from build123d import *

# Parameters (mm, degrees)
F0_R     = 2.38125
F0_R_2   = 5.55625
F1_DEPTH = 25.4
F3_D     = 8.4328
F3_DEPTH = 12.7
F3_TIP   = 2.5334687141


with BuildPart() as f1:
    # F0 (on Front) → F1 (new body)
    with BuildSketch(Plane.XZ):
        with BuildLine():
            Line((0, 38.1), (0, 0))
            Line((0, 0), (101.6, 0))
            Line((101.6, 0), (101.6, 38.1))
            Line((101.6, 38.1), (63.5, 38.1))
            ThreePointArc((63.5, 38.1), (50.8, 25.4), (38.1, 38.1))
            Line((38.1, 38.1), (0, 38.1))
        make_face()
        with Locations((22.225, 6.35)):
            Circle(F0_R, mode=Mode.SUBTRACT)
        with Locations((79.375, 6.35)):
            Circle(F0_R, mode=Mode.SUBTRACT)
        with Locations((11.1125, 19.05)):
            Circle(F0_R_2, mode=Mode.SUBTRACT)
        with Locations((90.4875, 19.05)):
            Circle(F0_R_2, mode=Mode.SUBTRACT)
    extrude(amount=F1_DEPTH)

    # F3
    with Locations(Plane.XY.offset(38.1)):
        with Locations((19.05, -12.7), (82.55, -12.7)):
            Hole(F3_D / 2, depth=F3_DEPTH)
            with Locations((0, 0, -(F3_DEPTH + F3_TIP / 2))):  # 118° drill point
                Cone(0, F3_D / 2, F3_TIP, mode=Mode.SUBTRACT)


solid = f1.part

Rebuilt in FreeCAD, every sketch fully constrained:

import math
import FreeCAD as App
import Part
import Sketcher

V = App.Vector
Q = App.Units.Quantity

doc = App.newDocument("Part")
body = doc.addObject("PartDesign::Body", "Body")

# Sketch on XZ plane
sketch1 = body.newObject("Sketcher::SketchObject", "Sketch")
sketch1.AttachmentSupport = (doc.getObject("XZ_Plane"), [""])
sketch1.MapMode = "FlatFace"
sketch1.addGeometry([
    Part.LineSegment(V(0, 38.1, 0), V(0, 0, 0)),  # 0
    Part.LineSegment(V(0, 0, 0), V(101.6, 0, 0)),  # 1
    Part.LineSegment(V(101.6, 0, 0), V(101.6, 38.1, 0)),  # 2
    Part.LineSegment(V(101.6, 38.1, 0), V(63.5, 38.1, 0)),  # 3
    Part.ArcOfCircle(Part.Circle(V(50.8, 38.1, 0), V(0, 0, 1), 12.7), math.radians(180), math.radians(360)),  # 4
    Part.LineSegment(V(38.1, 38.1, 0), V(0, 38.1, 0)),  # 5
    Part.Circle(V(22.2, 6.3, 0), V(0, 0, 1), 2.4),  # 6
    Part.Circle(V(79.4, 6.3, 0), V(0, 0, 1), 2.4),  # 7
    Part.Circle(V(11.1, 19.1, 0), V(0, 0, 1), 5.6),  # 8
    Part.Circle(V(90.5, 19.1, 0), V(0, 0, 1), 5.6),  # 9
], False)
sketch1.addConstraint([
    Sketcher.Constraint("Coincident", 0, 2, 1, 1),
    Sketcher.Constraint("Coincident", 1, 2, 2, 1),
    Sketcher.Constraint("Coincident", 2, 2, 3, 1),
    Sketcher.Constraint("Coincident", 3, 2, 4, 2),
    Sketcher.Constraint("Coincident", 4, 1, 5, 1),
    Sketcher.Constraint("Coincident", 5, 2, 0, 1),
    Sketcher.Constraint("Vertical", 0),
    Sketcher.Constraint("Horizontal", 1),
    Sketcher.Constraint("Vertical", 2),
    Sketcher.Constraint("Horizontal", 3),
    Sketcher.Constraint("Horizontal", 5),
    Sketcher.Constraint("Coincident", 0, 2, -1, 1),
    Sketcher.Constraint("Equal", 6, 7),
    Sketcher.Constraint("Equal", 8, 9),
    Sketcher.Constraint("Horizontal", 6, 3, 7, 3),
    Sketcher.Constraint("Horizontal", 8, 3, 9, 3),
    Sketcher.Constraint("Horizontal", 4, 3, 2, 2),
    Sketcher.Constraint("Horizontal", 3, 2, 4, 1),
    Sketcher.Constraint("Equal", 3, 5),
    Sketcher.Constraint("Equal", 5, 0),
    Sketcher.Constraint("Radius", 4, Q("0.5 in")),
    Sketcher.Constraint("DistanceX", 1, 1, 1, 2, Q("4 in")),
    Sketcher.Constraint("Diameter", 6, Q("0.1875 in")),
    Sketcher.Constraint("Diameter", 8, Q("0.4375 in")),
    Sketcher.Constraint("DistanceY", 6, 3, 8, 3, Q("0.5 in")),
    Sketcher.Constraint("DistanceY", -1, 1, 6, 3, Q("0.25 in")),
    Sketcher.Constraint("DistanceX", 6, 3, 7, 3, Q("2.25 in")),
    Sketcher.Constraint("DistanceX", -1, 1, 6, 3, Q("0.875 in")),
    Sketcher.Constraint("DistanceX", -1, 1, 8, 3, Q("0.4375 in")),
    Sketcher.Constraint("DistanceX", -1, 1, 9, 3, Q("3.5625 in")),
])
pad1 = body.newObject("PartDesign::Pad", "Pad")
pad1.Profile = sketch1
pad1.Length = Q("1 in")

# Sketch on XY plane
sketch2 = body.newObject("Sketcher::SketchObject", "Sketch001")
sketch2.AttachmentSupport = (doc.getObject("XY_Plane"), [""])
sketch2.MapMode = "FlatFace"
sketch2.AttachmentOffset = App.Placement(V(0, 0, 1.5 * 25.4), App.Rotation())
sketch2.addGeometry([
    Part.Circle(V(19.1, -12.7, 0), V(0, 0, 1), 4.2),
    Part.Circle(V(82.5, -12.7, 0), V(0, 0, 1), 4.2),
], False)
sketch2.addConstraint([
    Sketcher.Constraint("Equal", 0, 1),
    Sketcher.Constraint("Horizontal", 0, 3, 1, 3),
    Sketcher.Constraint("Diameter", 0, Q("0.332 in")),
    Sketcher.Constraint("DistanceY", 0, 3, -1, 1, Q("0.5 in")),
    Sketcher.Constraint("DistanceX", 0, 3, 1, 3, Q("2.5 in")),
    Sketcher.Constraint("DistanceX", -1, 1, 0, 3, Q("0.75 in")),
])
doc.recompute()
hole = body.newObject("PartDesign::Hole", "Hole")
hole.Profile = sketch2
hole.ThreadType = "None"
hole.Diameter = Q("0.332 in")
hole.DepthType = "Dimension"
hole.Depth = Q("0.5 in")
hole.DrillPoint = "Angled"
hole.DrillPointAngle = 118

doc.recompute()
